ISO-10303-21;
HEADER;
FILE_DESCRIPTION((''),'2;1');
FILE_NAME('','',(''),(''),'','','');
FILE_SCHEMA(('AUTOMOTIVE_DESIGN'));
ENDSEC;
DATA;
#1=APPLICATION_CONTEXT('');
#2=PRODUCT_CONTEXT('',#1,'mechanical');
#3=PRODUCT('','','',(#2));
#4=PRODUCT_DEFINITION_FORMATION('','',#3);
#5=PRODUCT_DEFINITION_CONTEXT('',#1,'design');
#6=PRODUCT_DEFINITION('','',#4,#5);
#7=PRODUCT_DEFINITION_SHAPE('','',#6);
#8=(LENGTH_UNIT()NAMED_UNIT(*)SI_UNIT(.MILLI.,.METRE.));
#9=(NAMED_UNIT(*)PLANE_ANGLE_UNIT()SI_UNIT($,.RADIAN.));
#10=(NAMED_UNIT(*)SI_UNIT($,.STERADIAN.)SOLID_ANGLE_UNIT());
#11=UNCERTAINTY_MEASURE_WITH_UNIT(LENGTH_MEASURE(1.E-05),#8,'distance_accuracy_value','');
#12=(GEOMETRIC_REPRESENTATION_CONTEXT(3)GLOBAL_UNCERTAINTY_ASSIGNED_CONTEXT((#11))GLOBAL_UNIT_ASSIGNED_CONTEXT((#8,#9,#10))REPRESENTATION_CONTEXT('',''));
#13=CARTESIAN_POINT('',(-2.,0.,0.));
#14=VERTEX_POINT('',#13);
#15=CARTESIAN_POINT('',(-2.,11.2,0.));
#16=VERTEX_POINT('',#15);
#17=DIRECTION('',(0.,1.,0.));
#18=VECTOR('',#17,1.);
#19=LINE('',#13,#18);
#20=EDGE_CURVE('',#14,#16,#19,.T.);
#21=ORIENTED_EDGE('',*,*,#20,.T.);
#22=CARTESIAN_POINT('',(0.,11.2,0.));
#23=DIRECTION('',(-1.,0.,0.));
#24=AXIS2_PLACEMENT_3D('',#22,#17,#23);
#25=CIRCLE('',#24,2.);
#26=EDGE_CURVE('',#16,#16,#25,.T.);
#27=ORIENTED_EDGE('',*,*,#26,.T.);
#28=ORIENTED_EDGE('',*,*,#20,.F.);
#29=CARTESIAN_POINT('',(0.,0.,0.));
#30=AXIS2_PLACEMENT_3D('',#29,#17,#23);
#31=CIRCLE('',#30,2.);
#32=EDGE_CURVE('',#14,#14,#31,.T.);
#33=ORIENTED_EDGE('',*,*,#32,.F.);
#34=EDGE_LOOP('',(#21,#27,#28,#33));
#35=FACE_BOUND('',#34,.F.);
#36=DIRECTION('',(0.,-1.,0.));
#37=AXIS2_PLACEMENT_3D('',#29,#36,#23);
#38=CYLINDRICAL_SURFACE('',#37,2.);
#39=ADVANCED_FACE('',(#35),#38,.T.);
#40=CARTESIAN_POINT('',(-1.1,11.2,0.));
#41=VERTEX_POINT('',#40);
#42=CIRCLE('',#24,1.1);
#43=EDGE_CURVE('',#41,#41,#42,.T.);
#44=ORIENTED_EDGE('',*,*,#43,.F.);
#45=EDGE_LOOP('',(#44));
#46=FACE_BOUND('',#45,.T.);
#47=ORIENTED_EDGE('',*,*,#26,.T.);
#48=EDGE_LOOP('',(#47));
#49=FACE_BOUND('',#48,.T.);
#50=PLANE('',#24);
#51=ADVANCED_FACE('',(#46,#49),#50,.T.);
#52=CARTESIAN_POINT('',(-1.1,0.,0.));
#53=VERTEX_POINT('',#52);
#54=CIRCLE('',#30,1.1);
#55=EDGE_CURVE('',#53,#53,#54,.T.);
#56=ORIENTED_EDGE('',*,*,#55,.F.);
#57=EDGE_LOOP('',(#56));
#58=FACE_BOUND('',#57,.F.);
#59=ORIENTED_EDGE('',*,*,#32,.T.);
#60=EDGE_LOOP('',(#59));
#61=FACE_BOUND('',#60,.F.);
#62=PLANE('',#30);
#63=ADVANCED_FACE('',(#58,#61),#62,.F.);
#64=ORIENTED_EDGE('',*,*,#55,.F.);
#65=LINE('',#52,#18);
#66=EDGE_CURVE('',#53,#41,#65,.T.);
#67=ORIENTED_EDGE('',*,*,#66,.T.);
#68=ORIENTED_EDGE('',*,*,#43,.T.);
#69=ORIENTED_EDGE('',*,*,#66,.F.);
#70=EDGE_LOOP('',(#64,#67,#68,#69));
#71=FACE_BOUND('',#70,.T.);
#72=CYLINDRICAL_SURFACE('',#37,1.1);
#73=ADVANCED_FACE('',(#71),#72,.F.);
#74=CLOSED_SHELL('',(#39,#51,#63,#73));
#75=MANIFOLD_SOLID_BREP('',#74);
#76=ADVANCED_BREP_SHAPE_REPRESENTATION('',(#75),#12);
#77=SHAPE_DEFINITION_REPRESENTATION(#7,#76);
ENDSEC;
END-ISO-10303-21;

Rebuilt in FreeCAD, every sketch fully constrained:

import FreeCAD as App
import Part
import Sketcher
Q = App.Units.Quantity

doc = App.newDocument("Part")
body = doc.addObject("PartDesign::Body", "Body")

# Sketch on XZ plane
sketch1 = body.newObject("Sketcher::SketchObject", "Sketch")
sketch1.AttachmentSupport = (doc.getObject("XZ_Plane"), [""])
sketch1.MapMode = "FlatFace"
sketch1.addGeometry(Part.Circle(App.Vector(0, 0, 0), App.Vector(0, 0, 1), 2), False)
sketch1.addGeometry(Part.Circle(App.Vector(0, 0, 0), App.Vector(0, 0, 1), 1.1), False)
sketch1.addConstraint(Sketcher.Constraint("Coincident", 0, 3, -1, 1))
sketch1.addConstraint(Sketcher.Constraint("Coincident", 1, 3, -1, 1))
sketch1.addConstraint(Sketcher.Constraint("Diameter", 0, Q("4 mm")))
sketch1.addConstraint(Sketcher.Constraint("Diameter", 1, Q("2.2 mm")))
pad1 = body.newObject("PartDesign::Pad", "Pad")
pad1.Profile = sketch1
pad1.Length = 11.2
pad1.Reversed = True

doc.recompute()
